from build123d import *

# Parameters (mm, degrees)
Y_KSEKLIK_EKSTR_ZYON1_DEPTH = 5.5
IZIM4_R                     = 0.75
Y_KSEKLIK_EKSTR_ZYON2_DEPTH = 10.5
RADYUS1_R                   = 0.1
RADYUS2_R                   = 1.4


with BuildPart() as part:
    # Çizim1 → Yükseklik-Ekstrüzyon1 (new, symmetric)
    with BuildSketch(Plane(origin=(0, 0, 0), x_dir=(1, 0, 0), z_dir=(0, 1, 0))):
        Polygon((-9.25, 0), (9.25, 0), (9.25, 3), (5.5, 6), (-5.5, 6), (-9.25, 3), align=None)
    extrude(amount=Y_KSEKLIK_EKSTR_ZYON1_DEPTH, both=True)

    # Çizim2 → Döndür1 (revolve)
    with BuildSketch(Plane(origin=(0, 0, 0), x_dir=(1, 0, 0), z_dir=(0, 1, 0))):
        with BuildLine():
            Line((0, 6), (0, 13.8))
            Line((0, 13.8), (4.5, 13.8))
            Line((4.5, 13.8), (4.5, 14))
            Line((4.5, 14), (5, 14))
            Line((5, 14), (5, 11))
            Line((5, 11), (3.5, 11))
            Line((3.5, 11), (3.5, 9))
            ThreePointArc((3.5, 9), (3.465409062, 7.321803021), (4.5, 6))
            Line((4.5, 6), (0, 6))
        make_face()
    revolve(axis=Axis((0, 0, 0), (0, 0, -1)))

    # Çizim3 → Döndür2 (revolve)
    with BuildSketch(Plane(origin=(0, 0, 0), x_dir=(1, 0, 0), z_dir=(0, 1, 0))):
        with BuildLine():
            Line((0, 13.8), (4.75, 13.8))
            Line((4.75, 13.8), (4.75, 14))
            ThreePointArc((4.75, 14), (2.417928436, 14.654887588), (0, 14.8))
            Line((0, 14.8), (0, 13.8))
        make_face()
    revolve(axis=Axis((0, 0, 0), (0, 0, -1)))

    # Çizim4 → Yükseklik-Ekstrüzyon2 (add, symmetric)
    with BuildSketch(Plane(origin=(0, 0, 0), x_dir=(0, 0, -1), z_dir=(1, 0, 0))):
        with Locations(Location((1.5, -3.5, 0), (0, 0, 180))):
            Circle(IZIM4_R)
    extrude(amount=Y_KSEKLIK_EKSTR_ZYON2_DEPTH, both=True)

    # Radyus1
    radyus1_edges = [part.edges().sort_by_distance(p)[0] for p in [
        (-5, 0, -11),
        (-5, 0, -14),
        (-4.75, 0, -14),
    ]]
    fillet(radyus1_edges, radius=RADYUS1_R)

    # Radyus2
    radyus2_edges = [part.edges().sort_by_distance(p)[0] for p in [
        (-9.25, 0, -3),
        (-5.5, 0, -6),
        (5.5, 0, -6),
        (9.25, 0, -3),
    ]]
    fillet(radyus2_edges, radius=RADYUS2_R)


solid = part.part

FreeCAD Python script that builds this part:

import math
import FreeCAD as App
import Part
import Sketcher
from FreeCAD import Vector


def edges_at(feature, points):
    """Names of the edges that pass closest to the given points."""
    edges = feature.Shape.Edges
    near = lambda p: min(range(len(edges)), key=lambda i: edges[i].distToShape(Part.Vertex(*p))[0])
    return sorted({f"Edge{near(p) + 1}" for p in points})

doc = App.newDocument("Part")
body = doc.addObject("PartDesign::Body", "Body")

# Sketch on XZ plane
sketch1 = body.newObject("Sketcher::SketchObject", "Sketch")
sketch1.AttachmentSupport = (doc.getObject("XZ_Plane"), [""])
sketch1.MapMode = "FlatFace"
sketch1.addGeometry(Part.LineSegment(Vector(-9.2, 0, 0), Vector(9.2, 0, 0)), False)
sketch1.addGeometry(Part.LineSegment(Vector(9.2, 0, 0), Vector(9.2, -3, 0)), False)
sketch1.addGeometry(Part.LineSegment(Vector(9.2, -3, 0), Vector(5.5, -6, 0)), False)
sketch1.addGeometry(Part.LineSegment(Vector(5.5, -6, 0), Vector(-5.5, -6, 0)), False)
sketch1.addGeometry(Part.LineSegment(Vector(-5.5, -6, 0), Vector(-9.2, -3, 0)), False)
sketch1.addGeometry(Part.LineSegment(Vector(-9.2, -3, 0), Vector(-9.2, 0, 0)), False)
sketch1.addConstraint(Sketcher.Constraint("Coincident", 0, 2, 1, 1))
sketch1.addConstraint(Sketcher.Constraint("Coincident", 1, 2, 2, 1))
sketch1.addConstraint(Sketcher.Constraint("Coincident", 2, 2, 3, 1))
sketch1.addConstraint(Sketcher.Constraint("Coincident", 3, 2, 4, 1))
sketch1.addConstraint(Sketcher.Constraint("Coincident", 4, 2, 5, 1))
sketch1.addConstraint(Sketcher.Constraint("Coincident", 5, 2, 0, 1))
sketch1.addConstraint(Sketcher.Constraint("Horizontal", 0))
sketch1.addConstraint(Sketcher.Constraint("Vertical", 1))
sketch1.addConstraint(Sketcher.Constraint("Horizontal", 3))
sketch1.addConstraint(Sketcher.Constraint("Vertical", 5))
sketch1.addConstraint(Sketcher.Constraint("Symmetric", 0, 2, 5, 2, -1, 1))
sketch1.addConstraint(Sketcher.Constraint("Horizontal", 1, 2, 4, 2))
sketch1.addConstraint(Sketcher.Constraint("Equal", 2, 4))
sketch1.addConstraint(Sketcher.Constraint("DistanceX", 3, 2, 3, 1, 11.0))
sketch1.addConstraint(Sketcher.Constraint("DistanceY", 1, 2, 1, 1, 3.0))
sketch1.addConstraint(Sketcher.Constraint("DistanceX", 0, 1, 0, 2, 18.5))
sketch1.addConstraint(Sketcher.Constraint("DistanceY", 2, 2, -1, 1, 6.0))
pad1 = body.newObject("PartDesign::Pad", "Pad")
pad1.Profile = sketch1
pad1.Length = 11
pad1.Midplane = True

# Sketch on XZ plane
sketch2 = body.newObject("Sketcher::SketchObject", "Sketch001")
sketch2.AttachmentSupport = (doc.getObject("XZ_Plane"), [""])
sketch2.MapMode = "FlatFace"
sketch2.addGeometry(Part.LineSegment(Vector(0, -13.8, 0), Vector(0, -6, 0)), False)
sketch2.addGeometry(Part.LineSegment(Vector(0, -6, 0), Vector(4.5, -6, 0)), False)
sketch2.addGeometry(Part.ArcOfCircle(Part.Circle(Vector(5.84, -8.11, 0), Vector(0, 0, 1), 2.5), math.radians(122), math.radians(201)), False)
sketch2.addGeometry(Part.LineSegment(Vector(3.5, -9, 0), Vector(3.5, -11, 0)), False)
sketch2.addGeometry(Part.LineSegment(Vector(3.5, -11, 0), Vector(5, -11, 0)), False)
sketch2.addGeometry(Part.LineSegment(Vector(5, -11, 0), Vector(5, -14, 0)), False)
sketch2.addGeometry(Part.LineSegment(Vector(5, -14, 0), Vector(4.5, -14, 0)), False)
sketch2.addGeometry(Part.LineSegment(Vector(4.5, -14, 0), Vector(4.5, -13.8, 0)), False)
sketch2.addGeometry(Part.LineSegment(Vector(4.5, -13.8, 0), Vector(0, -13.8, 0)), False)
sketch2.addConstraint(Sketcher.Constraint("Coincident", 0, 2, 1, 1))
sketch2.addConstraint(Sketcher.Constraint("Coincident", 1, 2, 2, 1))
sketch2.addConstraint(Sketcher.Constraint("Coincident", 2, 2, 3, 1))
sketch2.addConstraint(Sketcher.Constraint("Coincident", 3, 2, 4, 1))
sketch2.addConstraint(Sketcher.Constraint("Coincident", 4, 2, 5, 1))
sketch2.addConstraint(Sketcher.Constraint("Coincident", 5, 2, 6, 1))
sketch2.addConstraint(Sketcher.Constraint("Coincident", 6, 2, 7, 1))
sketch2.addConstraint(Sketcher.Constraint("Coincident", 7, 2, 8, 1))
sketch2.addConstraint(Sketcher.Constraint("Coincident", 8, 2, 0, 1))
sketch2.addConstraint(Sketcher.Constraint("Vertical", 0))
sketch2.addConstraint(Sketcher.Constraint("Horizontal", 1))
sketch2.addConstraint(Sketcher.Constraint("Vertical", 3))
sketch2.addConstraint(Sketcher.Constraint("Horizontal", 4))
sketch2.addConstraint(Sketcher.Constraint("Vertical", 5))
sketch2.addConstraint(Sketcher.Constraint("Horizontal", 6))
sketch2.addConstraint(Sketcher.Constraint("Vertical", 7))
sketch2.addConstraint(Sketcher.Constraint("Horizontal", 8))
sketch2.addConstraint(Sketcher.Constraint("PointOnObject", 0, 2, -2))
sketch2.addConstraint(Sketcher.Constraint("Vertical", 1, 2, 6, 2))
sketch2.addConstraint(Sketcher.Constraint("Radius", 2, 2.5))
sketch2.addConstraint(Sketcher.Constraint("DistanceY", 3, 2, 3, 1, 2.0))
sketch2.addConstraint(Sketcher.Constraint("DistanceY", 5, 2, 5, 1, 3.0))
sketch2.addConstraint(Sketcher.Constraint("DistanceX", 1, 1, 1, 2, 4.5))
sketch2.addConstraint(Sketcher.Constraint("DistanceX", 4, 1, 4, 2, 1.5))
sketch2.addConstraint(Sketcher.Constraint("DistanceX", 6, 2, 6, 1, 0.5))
sketch2.addConstraint(Sketcher.Constraint("DistanceY", 0, 1, 0, 2, 7.8))
sketch2.addConstraint(Sketcher.Constraint("DistanceY", 7, 1, 7, 2, 0.2))
sketch2.addConstraint(Sketcher.Constraint("DistanceY", 0, 2, -1, 1, 6.0))
revolution = body.newObject("PartDesign::Revolution", "Revolution")
revolution.Profile = sketch2
revolution.ReferenceAxis = (sketch2, ["V_Axis"])
revolution.Angle = 360

# Sketch on XZ plane
sketch3 = body.newObject("Sketcher::SketchObject", "Sketch002")
sketch3.AttachmentSupport = (doc.getObject("XZ_Plane"), [""])
sketch3.MapMode = "FlatFace"
sketch3.addGeometry(Part.LineSegment(Vector(0, -13.8, 0), Vector(4.75, -13.8, 0)), False)
sketch3.addGeometry(Part.LineSegment(Vector(4.75, -13.8, 0), Vector(4.75, -14, 0)), False)
sketch3.addGeometry(Part.ArcOfCircle(Part.Circle(Vector(0.53, -3.46, 0), Vector(0, 0, 1), 11.35), math.radians(-93), math.radians(-68)), False)
sketch3.addGeometry(Part.LineSegment(Vector(0, -14.8, 0), Vector(0, -13.8, 0)), False)
sketch3.addConstraint(Sketcher.Constraint("Coincident", 0, 2, 1, 1))
sketch3.addConstraint(Sketcher.Constraint("Coincident", 1, 2, 2, 2))
sketch3.addConstraint(Sketcher.Constraint("Coincident", 2, 1, 3, 1))
sketch3.addConstraint(Sketcher.Constraint("Coincident", 3, 2, 0, 1))
sketch3.addConstraint(Sketcher.Constraint("Horizontal", 0))
sketch3.addConstraint(Sketcher.Constraint("Vertical", 1))
sketch3.addConstraint(Sketcher.Constraint("Vertical", 3))
sketch3.addConstraint(Sketcher.Constraint("PointOnObject", 2, 1, -2))
sketch3.addConstraint(Sketcher.Constraint("DistanceY", 3, 1, 3, 2, 1.0))
sketch3.addConstraint(Sketcher.Constraint("Radius", 2, 11.35))
sketch3.addConstraint(Sketcher.Constraint("DistanceY", 1, 2, 1, 1, 0.2))
sketch3.addConstraint(Sketcher.Constraint("DistanceY", 1, 2, -1, 1, 14.0))
sketch3.addConstraint(Sketcher.Constraint("DistanceX", 0, 1, 0, 2, 4.75))
revolution2 = body.newObject("PartDesign::Revolution", "Revolution001")
revolution2.Profile = sketch3
revolution2.ReferenceAxis = (sketch3, ["V_Axis"])
revolution2.Angle = 360

# Sketch on YZ plane
sketch4 = body.newObject("Sketcher::SketchObject", "Sketch003")
sketch4.AttachmentSupport = (doc.getObject("YZ_Plane"), [""])
sketch4.MapMode = "FlatFace"
sketch4.addGeometry(Part.Circle(Vector(-3.5, -1.5, 0), Vector(0, 0, 1), 0.8), False)
sketch4.addConstraint(Sketcher.Constraint("Diameter", 0, 1.5))
sketch4.addConstraint(Sketcher.Constraint("DistanceX", 0, 3, -1, 1, 3.5))
sketch4.addConstraint(Sketcher.Constraint("DistanceY", 0, 3, -1, 1, 1.5))
pad2 = body.newObject("PartDesign::Pad", "Pad001")
pad2.Profile = sketch4
pad2.Length = 21
pad2.Midplane = True
doc.recompute()

fillet = body.newObject("PartDesign::Fillet", "Fillet")
fillet.Base = (pad2, edges_at(pad2, [(-5, 0, -11), (-5, 0, -14), (-4.75, 0, -14)]))
fillet.Radius = 0.1
doc.recompute()

fillet2 = body.newObject("PartDesign::Fillet", "Fillet001")
fillet2.Base = (fillet, edges_at(fillet, [
    (-9.25, 0, -3),
    (-5.5, 0, -6),
    (5.5, 0, -6),
    (9.25, 0, -3),
]))
fillet2.Radius = 1.4

doc.recompute()
